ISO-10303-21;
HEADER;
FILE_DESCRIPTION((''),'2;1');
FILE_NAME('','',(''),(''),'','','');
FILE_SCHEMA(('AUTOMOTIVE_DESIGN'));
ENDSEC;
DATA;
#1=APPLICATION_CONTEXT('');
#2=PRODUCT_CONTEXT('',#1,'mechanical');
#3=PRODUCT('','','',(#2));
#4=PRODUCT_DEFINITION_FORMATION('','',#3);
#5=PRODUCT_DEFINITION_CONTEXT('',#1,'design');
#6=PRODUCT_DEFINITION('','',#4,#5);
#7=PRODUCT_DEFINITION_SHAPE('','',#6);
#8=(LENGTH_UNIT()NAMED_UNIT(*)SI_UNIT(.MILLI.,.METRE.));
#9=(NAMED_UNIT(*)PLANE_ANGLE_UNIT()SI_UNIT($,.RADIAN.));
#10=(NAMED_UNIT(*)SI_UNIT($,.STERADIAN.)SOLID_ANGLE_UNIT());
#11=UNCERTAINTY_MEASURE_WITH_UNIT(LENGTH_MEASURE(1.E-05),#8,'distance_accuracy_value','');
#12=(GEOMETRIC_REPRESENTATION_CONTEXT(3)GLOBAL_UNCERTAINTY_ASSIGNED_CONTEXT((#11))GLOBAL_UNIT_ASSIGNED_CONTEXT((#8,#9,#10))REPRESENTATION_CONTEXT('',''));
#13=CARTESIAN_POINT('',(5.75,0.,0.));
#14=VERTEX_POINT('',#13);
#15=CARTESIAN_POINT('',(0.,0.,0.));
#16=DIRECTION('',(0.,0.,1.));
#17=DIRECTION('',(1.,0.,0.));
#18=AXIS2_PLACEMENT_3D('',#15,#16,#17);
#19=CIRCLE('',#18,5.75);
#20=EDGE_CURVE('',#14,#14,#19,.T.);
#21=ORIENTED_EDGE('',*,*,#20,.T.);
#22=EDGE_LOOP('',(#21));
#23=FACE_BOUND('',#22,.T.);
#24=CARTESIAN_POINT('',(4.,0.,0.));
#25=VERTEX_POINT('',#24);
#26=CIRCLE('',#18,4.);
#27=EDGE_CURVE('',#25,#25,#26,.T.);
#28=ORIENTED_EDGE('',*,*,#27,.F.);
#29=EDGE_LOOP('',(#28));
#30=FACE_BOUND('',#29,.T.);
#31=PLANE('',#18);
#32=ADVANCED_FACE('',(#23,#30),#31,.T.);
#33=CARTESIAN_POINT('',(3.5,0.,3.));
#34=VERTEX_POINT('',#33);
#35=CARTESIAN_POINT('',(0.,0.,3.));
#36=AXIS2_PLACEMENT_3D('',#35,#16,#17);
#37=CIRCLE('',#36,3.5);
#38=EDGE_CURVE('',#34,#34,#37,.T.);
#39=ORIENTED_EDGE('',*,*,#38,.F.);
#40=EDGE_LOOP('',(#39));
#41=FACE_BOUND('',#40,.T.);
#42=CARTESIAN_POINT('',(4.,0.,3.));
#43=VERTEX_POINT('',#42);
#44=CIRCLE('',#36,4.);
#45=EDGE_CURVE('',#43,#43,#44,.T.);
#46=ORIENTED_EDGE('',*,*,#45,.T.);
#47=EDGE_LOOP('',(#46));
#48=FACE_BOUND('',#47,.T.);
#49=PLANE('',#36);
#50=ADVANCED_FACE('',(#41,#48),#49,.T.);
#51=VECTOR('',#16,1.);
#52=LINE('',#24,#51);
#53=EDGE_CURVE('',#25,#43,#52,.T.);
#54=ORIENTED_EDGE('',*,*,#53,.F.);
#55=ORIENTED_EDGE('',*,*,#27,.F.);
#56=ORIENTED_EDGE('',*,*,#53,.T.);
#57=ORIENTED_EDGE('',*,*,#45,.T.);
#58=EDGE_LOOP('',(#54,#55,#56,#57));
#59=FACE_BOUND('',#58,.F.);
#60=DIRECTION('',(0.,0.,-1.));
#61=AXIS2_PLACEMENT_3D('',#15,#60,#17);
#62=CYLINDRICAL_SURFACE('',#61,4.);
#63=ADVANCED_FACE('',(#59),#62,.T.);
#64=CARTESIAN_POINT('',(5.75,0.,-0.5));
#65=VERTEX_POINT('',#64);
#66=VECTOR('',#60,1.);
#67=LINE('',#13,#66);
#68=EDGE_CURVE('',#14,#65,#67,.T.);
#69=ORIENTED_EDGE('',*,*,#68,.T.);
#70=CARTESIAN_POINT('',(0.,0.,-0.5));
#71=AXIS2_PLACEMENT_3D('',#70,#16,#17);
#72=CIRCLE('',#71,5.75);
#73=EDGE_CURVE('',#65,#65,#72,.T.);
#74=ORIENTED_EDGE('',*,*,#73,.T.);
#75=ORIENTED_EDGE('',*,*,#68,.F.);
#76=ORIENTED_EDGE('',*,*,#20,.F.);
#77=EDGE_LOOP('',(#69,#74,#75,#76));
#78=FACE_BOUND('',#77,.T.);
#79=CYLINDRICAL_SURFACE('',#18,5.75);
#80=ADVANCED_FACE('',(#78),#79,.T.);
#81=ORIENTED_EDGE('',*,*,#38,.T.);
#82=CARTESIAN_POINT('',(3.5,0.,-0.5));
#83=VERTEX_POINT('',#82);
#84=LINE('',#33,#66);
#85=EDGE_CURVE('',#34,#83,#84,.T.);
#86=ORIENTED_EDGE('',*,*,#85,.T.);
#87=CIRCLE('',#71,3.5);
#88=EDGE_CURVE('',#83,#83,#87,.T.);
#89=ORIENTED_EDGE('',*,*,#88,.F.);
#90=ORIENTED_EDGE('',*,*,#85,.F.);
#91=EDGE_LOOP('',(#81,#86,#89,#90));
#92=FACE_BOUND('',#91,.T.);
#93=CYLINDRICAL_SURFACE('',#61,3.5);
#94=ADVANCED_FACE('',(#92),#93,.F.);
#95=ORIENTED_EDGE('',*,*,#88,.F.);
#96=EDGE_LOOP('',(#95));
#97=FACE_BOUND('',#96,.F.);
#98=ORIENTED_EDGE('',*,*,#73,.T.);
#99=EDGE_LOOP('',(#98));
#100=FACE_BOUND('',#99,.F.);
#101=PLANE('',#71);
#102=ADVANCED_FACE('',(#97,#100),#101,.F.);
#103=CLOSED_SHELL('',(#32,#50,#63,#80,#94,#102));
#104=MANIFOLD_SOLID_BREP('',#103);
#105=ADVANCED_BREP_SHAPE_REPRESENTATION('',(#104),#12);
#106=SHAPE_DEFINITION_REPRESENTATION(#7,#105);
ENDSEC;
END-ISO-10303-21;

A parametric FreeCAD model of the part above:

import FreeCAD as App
import Part
import Sketcher

doc = App.newDocument("Part")
body = doc.addObject("PartDesign::Body", "Body")

sketch1 = doc.addObject("Sketcher::SketchObject", "Sketch")
body.addObject(sketch1)
sketch1.AttachmentSupport = (doc.XY_Plane, [""])
sketch1.MapMode = "FlatFace"
sketch1.addGeometry(Part.Circle(App.Vector(0, 0, 0), App.Vector(0, 0, 1), 4), False)
sketch1.addGeometry(Part.Circle(App.Vector(0, 0, 0), App.Vector(0, 0, 1), 3.5), False)
sketch1.addConstraint(Sketcher.Constraint("Coincident", 0, 3, -1, 1))
sketch1.addConstraint(Sketcher.Constraint("Coincident", 1, 3, -1, 1))
sketch1.addConstraint(Sketcher.Constraint("Diameter", 0, 8.0))
sketch1.addConstraint(Sketcher.Constraint("Diameter", 1, 7.0))
pad1 = doc.addObject("PartDesign::Pad", "Pad")
body.addObject(pad1)
pad1.Profile = sketch1
pad1.Length = 3

sketch2 = doc.addObject("Sketcher::SketchObject", "Sketch001")
body.addObject(sketch2)
sketch2.AttachmentSupport = (doc.XY_Plane, [""])
sketch2.MapMode = "FlatFace"
sketch2.addGeometry(Part.Circle(App.Vector(0, 0, 0), App.Vector(0, 0, 1), 5.8), False)
sketch2.addGeometry(Part.Circle(App.Vector(0, 0, 0), App.Vector(0, 0, 1), 3.5), False)
sketch2.addConstraint(Sketcher.Constraint("Coincident", 0, 3, -1, 1))
sketch2.addConstraint(Sketcher.Constraint("Coincident", 1, 3, -1, 1))
sketch2.addConstraint(Sketcher.Constraint("Diameter", 1, 7.0))
sketch2.addConstraint(Sketcher.Constraint("Diameter", 0, 11.5))
pad2 = doc.addObject("PartDesign::Pad", "Pad001")
body.addObject(pad2)
pad2.Profile = sketch2
pad2.Length = 0.5
pad2.Reversed = True

doc.recompute()
